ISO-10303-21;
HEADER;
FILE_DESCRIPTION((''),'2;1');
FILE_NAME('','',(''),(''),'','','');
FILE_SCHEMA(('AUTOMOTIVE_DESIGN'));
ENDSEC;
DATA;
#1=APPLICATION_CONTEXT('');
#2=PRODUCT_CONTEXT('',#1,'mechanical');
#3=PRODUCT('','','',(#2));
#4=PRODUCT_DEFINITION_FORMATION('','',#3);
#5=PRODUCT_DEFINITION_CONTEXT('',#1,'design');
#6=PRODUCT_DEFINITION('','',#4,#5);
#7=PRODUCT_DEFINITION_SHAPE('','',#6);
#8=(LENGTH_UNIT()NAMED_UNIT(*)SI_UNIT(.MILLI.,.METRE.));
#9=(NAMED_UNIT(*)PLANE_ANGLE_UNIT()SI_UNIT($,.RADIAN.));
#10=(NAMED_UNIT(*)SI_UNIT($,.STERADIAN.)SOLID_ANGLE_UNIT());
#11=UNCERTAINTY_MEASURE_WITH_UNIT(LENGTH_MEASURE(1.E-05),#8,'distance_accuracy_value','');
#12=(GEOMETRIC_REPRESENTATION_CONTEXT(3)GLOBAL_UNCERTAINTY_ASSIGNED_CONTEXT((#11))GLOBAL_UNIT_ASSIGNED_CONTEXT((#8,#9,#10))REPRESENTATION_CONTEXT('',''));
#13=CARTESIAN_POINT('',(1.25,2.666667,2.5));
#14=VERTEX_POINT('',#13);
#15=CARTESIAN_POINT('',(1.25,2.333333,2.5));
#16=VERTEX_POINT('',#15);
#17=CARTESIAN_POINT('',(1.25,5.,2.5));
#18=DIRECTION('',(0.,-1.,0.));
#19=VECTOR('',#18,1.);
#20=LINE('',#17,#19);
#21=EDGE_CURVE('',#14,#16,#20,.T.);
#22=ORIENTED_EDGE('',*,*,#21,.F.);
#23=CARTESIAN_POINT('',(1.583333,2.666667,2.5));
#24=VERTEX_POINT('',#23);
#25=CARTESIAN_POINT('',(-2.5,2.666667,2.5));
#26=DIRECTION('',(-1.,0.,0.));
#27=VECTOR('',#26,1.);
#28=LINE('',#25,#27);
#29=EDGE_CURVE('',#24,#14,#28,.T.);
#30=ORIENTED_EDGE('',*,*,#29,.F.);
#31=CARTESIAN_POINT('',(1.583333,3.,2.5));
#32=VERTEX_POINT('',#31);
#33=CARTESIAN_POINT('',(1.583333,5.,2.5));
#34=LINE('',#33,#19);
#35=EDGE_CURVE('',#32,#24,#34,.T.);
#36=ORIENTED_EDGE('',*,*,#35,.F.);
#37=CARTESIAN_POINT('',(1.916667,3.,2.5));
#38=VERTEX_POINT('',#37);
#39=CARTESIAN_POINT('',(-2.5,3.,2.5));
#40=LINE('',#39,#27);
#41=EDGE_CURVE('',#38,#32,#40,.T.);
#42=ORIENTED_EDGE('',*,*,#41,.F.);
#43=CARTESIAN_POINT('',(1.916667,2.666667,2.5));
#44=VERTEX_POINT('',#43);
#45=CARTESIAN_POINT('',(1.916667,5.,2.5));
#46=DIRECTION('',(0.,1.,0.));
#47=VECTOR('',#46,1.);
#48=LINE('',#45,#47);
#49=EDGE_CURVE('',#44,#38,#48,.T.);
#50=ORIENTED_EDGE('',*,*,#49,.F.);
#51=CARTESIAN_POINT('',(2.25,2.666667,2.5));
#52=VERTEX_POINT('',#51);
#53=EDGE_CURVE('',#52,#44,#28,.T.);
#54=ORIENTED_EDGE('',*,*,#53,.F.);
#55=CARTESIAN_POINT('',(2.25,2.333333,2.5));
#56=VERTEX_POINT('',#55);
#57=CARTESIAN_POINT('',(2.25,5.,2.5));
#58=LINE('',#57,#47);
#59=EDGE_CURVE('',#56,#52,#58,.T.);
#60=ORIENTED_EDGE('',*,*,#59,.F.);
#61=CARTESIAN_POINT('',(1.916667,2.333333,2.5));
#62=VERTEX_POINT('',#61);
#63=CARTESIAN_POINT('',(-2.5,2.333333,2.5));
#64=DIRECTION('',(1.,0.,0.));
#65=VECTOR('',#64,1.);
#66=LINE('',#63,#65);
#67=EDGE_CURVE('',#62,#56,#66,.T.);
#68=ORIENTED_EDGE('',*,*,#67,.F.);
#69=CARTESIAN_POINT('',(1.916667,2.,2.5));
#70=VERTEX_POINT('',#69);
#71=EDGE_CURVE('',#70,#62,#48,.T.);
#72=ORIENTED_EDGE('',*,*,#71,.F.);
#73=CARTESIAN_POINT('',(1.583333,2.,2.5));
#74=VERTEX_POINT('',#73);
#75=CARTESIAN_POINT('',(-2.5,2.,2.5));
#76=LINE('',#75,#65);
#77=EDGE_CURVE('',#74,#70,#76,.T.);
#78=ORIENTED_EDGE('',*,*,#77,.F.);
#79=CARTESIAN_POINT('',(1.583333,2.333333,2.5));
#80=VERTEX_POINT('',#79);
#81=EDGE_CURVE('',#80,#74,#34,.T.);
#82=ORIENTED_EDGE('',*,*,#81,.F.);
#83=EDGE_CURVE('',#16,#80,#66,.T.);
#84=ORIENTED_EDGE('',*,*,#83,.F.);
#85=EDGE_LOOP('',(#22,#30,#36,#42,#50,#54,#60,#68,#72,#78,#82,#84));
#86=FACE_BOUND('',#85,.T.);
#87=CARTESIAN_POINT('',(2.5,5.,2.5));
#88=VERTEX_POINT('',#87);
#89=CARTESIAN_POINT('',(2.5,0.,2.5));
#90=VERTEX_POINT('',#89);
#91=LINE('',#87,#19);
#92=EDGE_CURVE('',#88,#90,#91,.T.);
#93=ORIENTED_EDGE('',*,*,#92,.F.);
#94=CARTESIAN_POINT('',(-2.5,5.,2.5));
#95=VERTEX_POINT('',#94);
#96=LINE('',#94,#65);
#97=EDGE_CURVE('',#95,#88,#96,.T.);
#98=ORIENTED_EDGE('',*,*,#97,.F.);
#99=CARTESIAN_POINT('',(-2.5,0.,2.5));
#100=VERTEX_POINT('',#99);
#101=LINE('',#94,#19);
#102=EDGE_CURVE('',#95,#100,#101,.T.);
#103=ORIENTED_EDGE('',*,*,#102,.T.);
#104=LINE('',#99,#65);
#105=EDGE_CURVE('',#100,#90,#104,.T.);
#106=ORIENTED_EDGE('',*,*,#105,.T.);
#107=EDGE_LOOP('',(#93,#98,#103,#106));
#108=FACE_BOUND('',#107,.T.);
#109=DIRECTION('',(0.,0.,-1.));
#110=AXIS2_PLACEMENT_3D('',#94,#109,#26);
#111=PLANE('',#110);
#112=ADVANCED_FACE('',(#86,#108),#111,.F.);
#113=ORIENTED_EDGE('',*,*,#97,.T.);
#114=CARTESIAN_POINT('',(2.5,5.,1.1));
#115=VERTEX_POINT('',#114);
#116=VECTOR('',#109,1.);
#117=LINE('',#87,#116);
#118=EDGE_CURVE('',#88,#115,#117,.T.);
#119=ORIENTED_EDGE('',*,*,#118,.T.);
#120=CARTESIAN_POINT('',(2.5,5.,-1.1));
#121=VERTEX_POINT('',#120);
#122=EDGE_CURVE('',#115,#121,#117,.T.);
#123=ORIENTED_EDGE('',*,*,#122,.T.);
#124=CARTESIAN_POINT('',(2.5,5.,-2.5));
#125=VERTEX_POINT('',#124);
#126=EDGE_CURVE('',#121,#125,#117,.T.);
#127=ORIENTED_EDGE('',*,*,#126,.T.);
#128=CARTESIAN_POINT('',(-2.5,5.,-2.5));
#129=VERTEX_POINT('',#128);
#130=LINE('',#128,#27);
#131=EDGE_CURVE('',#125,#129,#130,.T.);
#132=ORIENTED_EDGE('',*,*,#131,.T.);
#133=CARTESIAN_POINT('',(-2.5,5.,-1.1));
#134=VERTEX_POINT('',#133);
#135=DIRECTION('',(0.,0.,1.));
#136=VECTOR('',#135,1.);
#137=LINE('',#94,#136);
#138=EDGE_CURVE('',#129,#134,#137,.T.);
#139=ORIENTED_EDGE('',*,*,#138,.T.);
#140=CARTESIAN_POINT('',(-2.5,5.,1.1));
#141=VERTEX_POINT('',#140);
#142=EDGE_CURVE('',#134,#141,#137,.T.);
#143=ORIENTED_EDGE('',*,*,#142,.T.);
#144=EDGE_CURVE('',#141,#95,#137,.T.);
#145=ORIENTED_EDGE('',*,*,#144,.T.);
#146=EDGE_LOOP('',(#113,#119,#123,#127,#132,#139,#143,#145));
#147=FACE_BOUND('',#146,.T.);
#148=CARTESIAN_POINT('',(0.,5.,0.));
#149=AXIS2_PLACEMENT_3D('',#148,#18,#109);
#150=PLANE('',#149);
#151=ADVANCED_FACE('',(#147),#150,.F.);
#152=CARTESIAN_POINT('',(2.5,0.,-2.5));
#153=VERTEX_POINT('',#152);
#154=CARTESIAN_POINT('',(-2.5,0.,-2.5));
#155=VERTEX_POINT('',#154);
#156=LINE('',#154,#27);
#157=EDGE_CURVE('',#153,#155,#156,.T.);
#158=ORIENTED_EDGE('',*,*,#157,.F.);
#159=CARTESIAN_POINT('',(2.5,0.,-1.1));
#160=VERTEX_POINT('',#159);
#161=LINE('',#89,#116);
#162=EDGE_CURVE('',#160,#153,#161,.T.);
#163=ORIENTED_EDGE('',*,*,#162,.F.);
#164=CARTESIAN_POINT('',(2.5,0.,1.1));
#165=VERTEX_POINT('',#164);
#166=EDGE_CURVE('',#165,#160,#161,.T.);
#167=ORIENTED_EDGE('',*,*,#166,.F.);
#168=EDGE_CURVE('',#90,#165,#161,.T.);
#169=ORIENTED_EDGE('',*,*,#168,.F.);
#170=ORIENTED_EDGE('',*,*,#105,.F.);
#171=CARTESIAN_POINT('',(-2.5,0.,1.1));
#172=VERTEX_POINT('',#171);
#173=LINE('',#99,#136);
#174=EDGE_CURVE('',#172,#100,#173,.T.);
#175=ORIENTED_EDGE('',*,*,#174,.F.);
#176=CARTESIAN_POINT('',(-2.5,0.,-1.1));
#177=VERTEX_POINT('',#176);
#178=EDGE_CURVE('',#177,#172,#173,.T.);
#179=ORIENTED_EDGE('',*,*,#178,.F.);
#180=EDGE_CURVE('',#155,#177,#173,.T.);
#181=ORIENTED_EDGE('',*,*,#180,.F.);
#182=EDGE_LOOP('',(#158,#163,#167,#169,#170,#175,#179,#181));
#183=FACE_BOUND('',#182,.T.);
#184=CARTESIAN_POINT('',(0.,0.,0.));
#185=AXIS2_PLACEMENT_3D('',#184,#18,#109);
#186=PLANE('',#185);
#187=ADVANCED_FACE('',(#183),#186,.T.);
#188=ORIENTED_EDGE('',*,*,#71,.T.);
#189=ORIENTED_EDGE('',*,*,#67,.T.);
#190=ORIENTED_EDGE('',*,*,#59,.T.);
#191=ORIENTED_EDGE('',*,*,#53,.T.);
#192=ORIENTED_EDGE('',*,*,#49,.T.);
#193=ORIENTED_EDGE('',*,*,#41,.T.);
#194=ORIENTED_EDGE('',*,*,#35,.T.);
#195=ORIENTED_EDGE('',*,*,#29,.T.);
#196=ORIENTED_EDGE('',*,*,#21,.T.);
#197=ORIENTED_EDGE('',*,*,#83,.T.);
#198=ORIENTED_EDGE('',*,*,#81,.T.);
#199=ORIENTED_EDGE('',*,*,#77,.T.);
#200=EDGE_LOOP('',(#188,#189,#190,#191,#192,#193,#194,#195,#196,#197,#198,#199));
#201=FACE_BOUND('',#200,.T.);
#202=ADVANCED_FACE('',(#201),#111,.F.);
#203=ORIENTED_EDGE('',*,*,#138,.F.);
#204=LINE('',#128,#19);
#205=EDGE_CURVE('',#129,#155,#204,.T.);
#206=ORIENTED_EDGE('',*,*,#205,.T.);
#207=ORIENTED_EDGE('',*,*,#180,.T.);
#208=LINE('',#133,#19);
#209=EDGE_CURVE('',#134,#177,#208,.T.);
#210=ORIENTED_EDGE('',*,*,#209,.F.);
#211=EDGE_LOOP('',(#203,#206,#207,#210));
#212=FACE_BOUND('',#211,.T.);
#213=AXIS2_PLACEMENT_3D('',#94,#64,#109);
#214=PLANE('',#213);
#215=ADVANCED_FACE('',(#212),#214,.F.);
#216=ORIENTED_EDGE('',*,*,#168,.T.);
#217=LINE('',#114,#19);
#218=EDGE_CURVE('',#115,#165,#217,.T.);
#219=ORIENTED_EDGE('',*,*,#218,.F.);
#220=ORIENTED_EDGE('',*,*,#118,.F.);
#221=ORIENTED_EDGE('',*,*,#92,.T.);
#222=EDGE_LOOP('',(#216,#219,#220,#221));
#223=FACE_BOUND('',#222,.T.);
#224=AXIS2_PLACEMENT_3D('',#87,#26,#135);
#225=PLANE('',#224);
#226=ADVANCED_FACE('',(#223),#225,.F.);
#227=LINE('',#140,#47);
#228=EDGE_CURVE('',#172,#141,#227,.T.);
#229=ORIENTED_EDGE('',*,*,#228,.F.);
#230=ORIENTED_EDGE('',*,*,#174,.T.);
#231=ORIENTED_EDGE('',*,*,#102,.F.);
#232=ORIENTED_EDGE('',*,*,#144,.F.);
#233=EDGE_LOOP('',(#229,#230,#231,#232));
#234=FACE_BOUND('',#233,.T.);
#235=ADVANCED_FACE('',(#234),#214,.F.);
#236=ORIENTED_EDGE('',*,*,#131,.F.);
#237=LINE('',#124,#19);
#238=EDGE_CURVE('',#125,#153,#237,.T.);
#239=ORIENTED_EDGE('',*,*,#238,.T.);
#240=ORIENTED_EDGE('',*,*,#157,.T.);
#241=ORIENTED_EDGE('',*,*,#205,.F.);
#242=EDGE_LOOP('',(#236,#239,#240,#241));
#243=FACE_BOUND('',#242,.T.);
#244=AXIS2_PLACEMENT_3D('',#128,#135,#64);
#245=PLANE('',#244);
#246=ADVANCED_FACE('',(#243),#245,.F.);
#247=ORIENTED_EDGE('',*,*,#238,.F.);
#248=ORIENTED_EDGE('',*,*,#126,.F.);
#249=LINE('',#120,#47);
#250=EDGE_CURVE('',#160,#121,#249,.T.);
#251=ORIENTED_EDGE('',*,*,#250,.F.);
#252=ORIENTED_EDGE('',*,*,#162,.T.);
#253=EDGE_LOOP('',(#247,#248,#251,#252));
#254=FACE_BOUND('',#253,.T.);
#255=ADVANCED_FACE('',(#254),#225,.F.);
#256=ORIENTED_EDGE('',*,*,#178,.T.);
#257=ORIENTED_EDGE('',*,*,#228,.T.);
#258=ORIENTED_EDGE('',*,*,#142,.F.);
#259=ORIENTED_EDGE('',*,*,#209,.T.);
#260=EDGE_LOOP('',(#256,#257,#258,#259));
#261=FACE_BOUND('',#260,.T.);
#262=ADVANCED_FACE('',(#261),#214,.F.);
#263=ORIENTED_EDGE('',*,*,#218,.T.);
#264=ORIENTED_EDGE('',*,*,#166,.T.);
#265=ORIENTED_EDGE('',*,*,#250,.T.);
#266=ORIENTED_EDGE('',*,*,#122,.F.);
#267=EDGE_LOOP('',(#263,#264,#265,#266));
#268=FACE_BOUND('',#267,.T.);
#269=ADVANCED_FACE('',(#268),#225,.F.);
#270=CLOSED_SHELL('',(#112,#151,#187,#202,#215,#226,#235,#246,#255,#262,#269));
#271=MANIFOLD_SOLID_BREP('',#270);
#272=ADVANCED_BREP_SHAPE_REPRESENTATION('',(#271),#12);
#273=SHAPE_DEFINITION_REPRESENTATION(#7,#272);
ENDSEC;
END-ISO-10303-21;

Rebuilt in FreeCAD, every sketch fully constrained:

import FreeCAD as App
import Part
import Sketcher

V = App.Vector
Q = App.Units.Quantity


def add_polygon(sketch, points):
    """Adds a closed chain of lines whose ends are joined by coincident constraints."""
    first, n = sketch.GeometryCount, len(points)
    for a, b in zip(points, points[1:] + points[:1]):
        sketch.addGeometry(Part.LineSegment(App.Vector(*a, 0), App.Vector(*b, 0)), False)
    for i in range(n):
        sketch.addConstraint(Sketcher.Constraint("Coincident", first + i, 2, first + (i + 1) % n, 1))

doc = App.newDocument("Part")
body = doc.addObject("PartDesign::Body", "Body")

# Sketch on XZ plane
sketch1 = body.newObject("Sketcher::SketchObject", "Sketch")
sketch1.AttachmentSupport = (doc.getObject("XZ_Plane"), [""])
sketch1.MapMode = "FlatFace"
add_polygon(sketch1, [(-2, -2), (-2, 2), (2, 2), (2, -2)])  # lines 0-3
sketch1.addConstraint(Sketcher.Constraint("Vertical", 0))
sketch1.addConstraint(Sketcher.Constraint("Horizontal", 1))
sketch1.addConstraint(Sketcher.Constraint("Vertical", 2))
sketch1.addConstraint(Sketcher.Constraint("Horizontal", 3))
sketch1.addConstraint(Sketcher.Constraint("Symmetric", 0, 2, 2, 2, -1, 1))
sketch1.addConstraint(Sketcher.Constraint("Equal", 3, 0))
sketch1.addConstraint(Sketcher.Constraint("DistanceX", 1, 1, 1, 2, Q("5 mm")))
pad1 = body.newObject("PartDesign::Pad", "Pad")
pad1.Profile = sketch1
pad1.Length = 5
pad1.Reversed = True

doc.recompute()
